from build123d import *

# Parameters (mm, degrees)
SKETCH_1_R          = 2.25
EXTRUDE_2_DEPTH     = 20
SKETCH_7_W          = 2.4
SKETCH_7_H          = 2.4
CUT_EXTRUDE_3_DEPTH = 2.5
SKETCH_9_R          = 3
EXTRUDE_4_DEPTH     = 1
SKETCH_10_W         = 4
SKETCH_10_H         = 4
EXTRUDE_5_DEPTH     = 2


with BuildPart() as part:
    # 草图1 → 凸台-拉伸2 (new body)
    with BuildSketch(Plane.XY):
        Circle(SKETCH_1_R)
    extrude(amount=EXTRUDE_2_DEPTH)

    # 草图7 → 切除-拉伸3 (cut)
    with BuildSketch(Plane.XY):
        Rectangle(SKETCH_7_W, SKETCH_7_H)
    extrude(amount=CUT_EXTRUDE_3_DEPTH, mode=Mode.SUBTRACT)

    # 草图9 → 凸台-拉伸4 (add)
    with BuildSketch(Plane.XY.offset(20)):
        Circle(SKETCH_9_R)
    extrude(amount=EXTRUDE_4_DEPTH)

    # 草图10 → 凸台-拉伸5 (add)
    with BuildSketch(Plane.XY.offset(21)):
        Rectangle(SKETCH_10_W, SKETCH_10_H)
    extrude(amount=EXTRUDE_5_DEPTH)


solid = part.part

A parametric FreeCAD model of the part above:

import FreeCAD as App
import Part
import Sketcher
from FreeCAD import Vector

doc = App.newDocument("Part")
params = doc.addObject("Spreadsheet::Sheet", "Params")
for row, (alias, value) in enumerate([
    ("sketch1_diameter", "4.5 mm"),
    ("pad1_length", "20 mm"),
    ("sketch2_width", "2.4 mm"),
    ("pocket1_length", "2.5 mm"),
    ("sketch3_diameter", "6 mm"),
    ("pad2_length", "1 mm"),
    ("sketch4_width", "4 mm"),
    ("pad3_length", "2 mm"),
], start=1):
    params.set(f"A{row}", alias)
    params.set(f"B{row}", "=" + value)
    params.setAlias(f"B{row}", alias)

body = doc.addObject("PartDesign::Body", "Body")

# Sketch on XY plane
sketch1 = body.newObject("Sketcher::SketchObject", "Sketch")
sketch1.AttachmentSupport = (doc.getObject("XY_Plane"), [""])
sketch1.MapMode = "FlatFace"
sketch1.addGeometry(Part.Circle(Vector(0, 0, 0), Vector(0, 0, 1), 2.2), False)
sketch1.addConstraint(Sketcher.Constraint("Coincident", 0, 3, -1, 1))
sketch1.addConstraint(Sketcher.Constraint("Diameter", 0, 4.5))
sketch1.setExpression("Constraints[1]", "Params.sketch1_diameter")
pad1 = body.newObject("PartDesign::Pad", "Pad")
pad1.Profile = sketch1
pad1.setExpression("Length", "Params.pad1_length")

# Sketch on XY plane
sketch2 = body.newObject("Sketcher::SketchObject", "Sketch001")
sketch2.AttachmentSupport = (doc.getObject("XY_Plane"), [""])
sketch2.MapMode = "FlatFace"
sketch2.addGeometry(Part.LineSegment(Vector(-1.2, 1.2, 0), Vector(-1.2, -1.2, 0)), False)
sketch2.addGeometry(Part.LineSegment(Vector(-1.2, -1.2, 0), Vector(1.2, -1.2, 0)), False)
sketch2.addGeometry(Part.LineSegment(Vector(1.2, -1.2, 0), Vector(1.2, 1.2, 0)), False)
sketch2.addGeometry(Part.LineSegment(Vector(1.2, 1.2, 0), Vector(-1.2, 1.2, 0)), False)
sketch2.addConstraint(Sketcher.Constraint("Coincident", 0, 2, 1, 1))
sketch2.addConstraint(Sketcher.Constraint("Coincident", 1, 2, 2, 1))
sketch2.addConstraint(Sketcher.Constraint("Coincident", 2, 2, 3, 1))
sketch2.addConstraint(Sketcher.Constraint("Coincident", 3, 2, 0, 1))
sketch2.addConstraint(Sketcher.Constraint("Vertical", 0))
sketch2.addConstraint(Sketcher.Constraint("Horizontal", 1))
sketch2.addConstraint(Sketcher.Constraint("Vertical", 2))
sketch2.addConstraint(Sketcher.Constraint("Horizontal", 3))
sketch2.addConstraint(Sketcher.Constraint("Symmetric", 0, 2, 2, 2, -1, 1))
sketch2.addConstraint(Sketcher.Constraint("Equal", 3, 0))
sketch2.addConstraint(Sketcher.Constraint("DistanceX", 1, 1, 1, 2, 2.4))
sketch2.setExpression("Constraints[10]", "Params.sketch2_width")
pocket1 = body.newObject("PartDesign::Pocket", "Pocket")
pocket1.Profile = sketch2
pocket1.setExpression("Length", "Params.pocket1_length")
pocket1.Reversed = True

# Sketch on XY plane
sketch3 = body.newObject("Sketcher::SketchObject", "Sketch002")
sketch3.AttachmentSupport = (doc.getObject("XY_Plane"), [""])
sketch3.MapMode = "FlatFace"
sketch3.AttachmentOffset = App.Placement(Vector(0, 0, 20), App.Rotation())
sketch3.addGeometry(Part.Circle(Vector(0, 0, 0), Vector(0, 0, 1), 3), False)
sketch3.addConstraint(Sketcher.Constraint("Coincident", 0, 3, -1, 1))
sketch3.addConstraint(Sketcher.Constraint("Diameter", 0, 6.0))
sketch3.setExpression("Constraints[1]", "Params.sketch3_diameter")
pad2 = body.newObject("PartDesign::Pad", "Pad001")
pad2.Profile = sketch3
pad2.setExpression("Length", "Params.pad2_length")

# Sketch on XY plane
sketch4 = body.newObject("Sketcher::SketchObject", "Sketch003")
sketch4.AttachmentSupport = (doc.getObject("XY_Plane"), [""])
sketch4.MapMode = "FlatFace"
sketch4.AttachmentOffset = App.Placement(Vector(0, 0, 21), App.Rotation())
sketch4.addGeometry(Part.LineSegment(Vector(-2, 2, 0), Vector(-2, -2, 0)), False)
sketch4.addGeometry(Part.LineSegment(Vector(-2, -2, 0), Vector(2, -2, 0)), False)
sketch4.addGeometry(Part.LineSegment(Vector(2, -2, 0), Vector(2, 2, 0)), False)
sketch4.addGeometry(Part.LineSegment(Vector(2, 2, 0), Vector(-2, 2, 0)), False)
sketch4.addConstraint(Sketcher.Constraint("Coincident", 0, 2, 1, 1))
sketch4.addConstraint(Sketcher.Constraint("Coincident", 1, 2, 2, 1))
sketch4.addConstraint(Sketcher.Constraint("Coincident", 2, 2, 3, 1))
sketch4.addConstraint(Sketcher.Constraint("Coincident", 3, 2, 0, 1))
sketch4.addConstraint(Sketcher.Constraint("Vertical", 0))
sketch4.addConstraint(Sketcher.Constraint("Horizontal", 1))
sketch4.addConstraint(Sketcher.Constraint("Vertical", 2))
sketch4.addConstraint(Sketcher.Constraint("Horizontal", 3))
sketch4.addConstraint(Sketcher.Constraint("Symmetric", 0, 2, 2, 2, -1, 1))
sketch4.addConstraint(Sketcher.Constraint("Equal", 3, 0))
sketch4.addConstraint(Sketcher.Constraint("DistanceX", 1, 1, 1, 2, 4.0))
sketch4.setExpression("Constraints[10]", "Params.sketch4_width")
pad3 = body.newObject("PartDesign::Pad", "Pad002")
pad3.Profile = sketch4
pad3.setExpression("Length", "Params.pad3_length")

doc.recompute()
